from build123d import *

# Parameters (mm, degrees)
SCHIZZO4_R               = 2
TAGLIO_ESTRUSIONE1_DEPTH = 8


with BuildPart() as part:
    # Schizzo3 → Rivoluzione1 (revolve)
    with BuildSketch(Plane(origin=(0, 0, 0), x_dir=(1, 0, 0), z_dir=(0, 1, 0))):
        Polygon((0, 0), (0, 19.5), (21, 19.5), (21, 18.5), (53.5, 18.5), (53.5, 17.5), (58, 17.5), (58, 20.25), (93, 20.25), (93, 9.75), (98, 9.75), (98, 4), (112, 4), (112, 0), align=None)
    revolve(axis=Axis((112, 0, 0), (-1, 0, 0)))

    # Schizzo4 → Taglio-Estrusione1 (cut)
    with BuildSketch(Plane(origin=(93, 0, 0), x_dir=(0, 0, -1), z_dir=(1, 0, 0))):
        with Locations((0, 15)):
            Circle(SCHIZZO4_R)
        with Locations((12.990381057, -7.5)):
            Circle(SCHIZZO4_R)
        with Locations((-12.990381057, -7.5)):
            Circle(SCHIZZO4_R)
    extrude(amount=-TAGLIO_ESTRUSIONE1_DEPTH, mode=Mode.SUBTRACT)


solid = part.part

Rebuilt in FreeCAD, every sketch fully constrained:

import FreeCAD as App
import Part
import Sketcher

V = App.Vector

doc = App.newDocument("Part")
params = doc.addObject("Spreadsheet::Sheet", "Params")
for row, (alias, value) in enumerate([
    ("sketch1_width", "112 mm"),
    ("sketch1_width2", "14 mm"),
    ("sketch1_width3", "5 mm"),
    ("sketch1_width4", "35 mm"),
    ("sketch1_width5", "21 mm"),
    ("revolution_angle", "360 deg"),
    ("sketch2_diameter", "4 mm"),
    ("pocket1_length", "8 mm"),
], start=1):
    params.set(f"A{row}", alias)
    params.set(f"B{row}", "=" + value)
    params.setAlias(f"B{row}", alias)

body = doc.addObject("PartDesign::Body", "Body")

# Sketch on XZ plane
sketch1 = body.newObject("Sketcher::SketchObject", "Sketch")
sketch1.AttachmentSupport = (doc.getObject("XZ_Plane"), [""])
sketch1.MapMode = "FlatFace"
sketch1.addGeometry(Part.LineSegment(V(0, -19.5, 0), V(0, 0, 0)), False)
sketch1.addGeometry(Part.LineSegment(V(0, 0, 0), V(112, 0, 0)), False)
sketch1.addGeometry(Part.LineSegment(V(112, 0, 0), V(112, -4, 0)), False)
sketch1.addGeometry(Part.LineSegment(V(112, -4, 0), V(98, -4, 0)), False)
sketch1.addGeometry(Part.LineSegment(V(98, -4, 0), V(98, -9.8, 0)), False)
sketch1.addGeometry(Part.LineSegment(V(98, -9.8, 0), V(93, -9.8, 0)), False)
sketch1.addGeometry(Part.LineSegment(V(93, -9.8, 0), V(93, -20.2, 0)), False)
sketch1.addGeometry(Part.LineSegment(V(93, -20.2, 0), V(58, -20.2, 0)), False)
sketch1.addGeometry(Part.LineSegment(V(58, -20.2, 0), V(58, -17.5, 0)), False)
sketch1.addGeometry(Part.LineSegment(V(58, -17.5, 0), V(53.5, -17.5, 0)), False)
sketch1.addGeometry(Part.LineSegment(V(53.5, -17.5, 0), V(53.5, -18.5, 0)), False)
sketch1.addGeometry(Part.LineSegment(V(53.5, -18.5, 0), V(21, -18.5, 0)), False)
sketch1.addGeometry(Part.LineSegment(V(21, -18.5, 0), V(21, -19.5, 0)), False)
sketch1.addGeometry(Part.LineSegment(V(21, -19.5, 0), V(0, -19.5, 0)), False)
sketch1.addConstraint(Sketcher.Constraint("Coincident", 0, 2, 1, 1))
sketch1.addConstraint(Sketcher.Constraint("Coincident", 1, 2, 2, 1))
sketch1.addConstraint(Sketcher.Constraint("Coincident", 2, 2, 3, 1))
sketch1.addConstraint(Sketcher.Constraint("Coincident", 3, 2, 4, 1))
sketch1.addConstraint(Sketcher.Constraint("Coincident", 4, 2, 5, 1))
sketch1.addConstraint(Sketcher.Constraint("Coincident", 5, 2, 6, 1))
sketch1.addConstraint(Sketcher.Constraint("Coincident", 6, 2, 7, 1))
sketch1.addConstraint(Sketcher.Constraint("Coincident", 7, 2, 8, 1))
sketch1.addConstraint(Sketcher.Constraint("Coincident", 8, 2, 9, 1))
sketch1.addConstraint(Sketcher.Constraint("Coincident", 9, 2, 10, 1))
sketch1.addConstraint(Sketcher.Constraint("Coincident", 10, 2, 11, 1))
sketch1.addConstraint(Sketcher.Constraint("Coincident", 11, 2, 12, 1))
sketch1.addConstraint(Sketcher.Constraint("Coincident", 12, 2, 13, 1))
sketch1.addConstraint(Sketcher.Constraint("Coincident", 13, 2, 0, 1))
sketch1.addConstraint(Sketcher.Constraint("Vertical", 0))
sketch1.addConstraint(Sketcher.Constraint("Horizontal", 1))
sketch1.addConstraint(Sketcher.Constraint("Vertical", 2))
sketch1.addConstraint(Sketcher.Constraint("Horizontal", 3))
sketch1.addConstraint(Sketcher.Constraint("Vertical", 4))
sketch1.addConstraint(Sketcher.Constraint("Horizontal", 5))
sketch1.addConstraint(Sketcher.Constraint("Vertical", 6))
sketch1.addConstraint(Sketcher.Constraint("Horizontal", 7))
sketch1.addConstraint(Sketcher.Constraint("Vertical", 8))
sketch1.addConstraint(Sketcher.Constraint("Horizontal", 9))
sketch1.addConstraint(Sketcher.Constraint("Vertical", 10))
sketch1.addConstraint(Sketcher.Constraint("Horizontal", 11))
sketch1.addConstraint(Sketcher.Constraint("Vertical", 12))
sketch1.addConstraint(Sketcher.Constraint("Horizontal", 13))
sketch1.addConstraint(Sketcher.Constraint("Coincident", 0, 2, -1, 1))
sketch1.addConstraint(Sketcher.Constraint("Equal", 10, 12))
sketch1.addConstraint(Sketcher.Constraint("DistanceX", 1, 1, 1, 2, 112.0))
sketch1.addConstraint(Sketcher.Constraint("DistanceX", 3, 2, 3, 1, 14.0))
sketch1.addConstraint(Sketcher.Constraint("DistanceX", 5, 2, 5, 1, 5.0))
sketch1.addConstraint(Sketcher.Constraint("DistanceX", 7, 2, 7, 1, 35.0))
sketch1.addConstraint(Sketcher.Constraint("DistanceX", 13, 2, 13, 1, 21.0))
sketch1.addConstraint(Sketcher.Constraint("DistanceY", 2, 2, 2, 1, 4.0))
sketch1.addConstraint(Sketcher.Constraint("DistanceY", 10, 2, 10, 1, 1.0))
sketch1.addConstraint(Sketcher.Constraint("DistanceX", 9, 2, 9, 1, 4.5))
sketch1.addConstraint(Sketcher.Constraint("DistanceY", 0, 1, 0, 2, 19.5))
sketch1.addConstraint(Sketcher.Constraint("DistanceY", 6, 2, 6, 1, 10.5))
sketch1.addConstraint(Sketcher.Constraint("DistanceY", 4, 2, 4, 1, 5.75))
sketch1.setExpression("Constraints[30]", "Params.sketch1_width")
sketch1.setExpression("Constraints[31]", "Params.sketch1_width2")
sketch1.setExpression("Constraints[32]", "Params.sketch1_width3")
sketch1.setExpression("Constraints[33]", "Params.sketch1_width4")
sketch1.setExpression("Constraints[34]", "Params.sketch1_width5")
revolution = body.newObject("PartDesign::Revolution", "Revolution")
revolution.Profile = sketch1
revolution.ReferenceAxis = (sketch1, ["H_Axis"])
revolution.setExpression("Angle", "Params.revolution_angle")

# Sketch on YZ plane
sketch2 = body.newObject("Sketcher::SketchObject", "Sketch001")
sketch2.AttachmentSupport = (doc.getObject("YZ_Plane"), [""])
sketch2.MapMode = "FlatFace"
sketch2.AttachmentOffset = App.Placement(V(0, 0, 93), App.Rotation())
sketch2.addGeometry(Part.Circle(V(15, 0, 0), V(0, 0, 1), 2), False)
sketch2.addGeometry(Part.Circle(V(-7.5, -13, 0), V(0, 0, 1), 2), False)
sketch2.addGeometry(Part.Circle(V(-7.5, 13, 0), V(0, 0, 1), 2), False)
sketch2.addConstraint(Sketcher.Constraint("Equal", 0, 1))
sketch2.addConstraint(Sketcher.Constraint("Equal", 1, 2))
sketch2.addConstraint(Sketcher.Constraint("Symmetric", 1, 3, 2, 3, -1))
sketch2.addConstraint(Sketcher.Constraint("PointOnObject", 0, 3, -1))
sketch2.addConstraint(Sketcher.Constraint("Diameter", 0, 4.0))
sketch2.addConstraint(Sketcher.Constraint("DistanceX", -1, 1, 0, 3, 15.0))
sketch2.addConstraint(Sketcher.Constraint("DistanceX", 1, 3, -1, 1, 7.5))
sketch2.addConstraint(Sketcher.Constraint("DistanceY", 1, 3, -1, 1, 12.990381))
sketch2.setExpression("Constraints[4]", "Params.sketch2_diameter")
pocket1 = body.newObject("PartDesign::Pocket", "Pocket")
pocket1.Profile = sketch2
pocket1.setExpression("Length", "Params.pocket1_length")

doc.recompute()
